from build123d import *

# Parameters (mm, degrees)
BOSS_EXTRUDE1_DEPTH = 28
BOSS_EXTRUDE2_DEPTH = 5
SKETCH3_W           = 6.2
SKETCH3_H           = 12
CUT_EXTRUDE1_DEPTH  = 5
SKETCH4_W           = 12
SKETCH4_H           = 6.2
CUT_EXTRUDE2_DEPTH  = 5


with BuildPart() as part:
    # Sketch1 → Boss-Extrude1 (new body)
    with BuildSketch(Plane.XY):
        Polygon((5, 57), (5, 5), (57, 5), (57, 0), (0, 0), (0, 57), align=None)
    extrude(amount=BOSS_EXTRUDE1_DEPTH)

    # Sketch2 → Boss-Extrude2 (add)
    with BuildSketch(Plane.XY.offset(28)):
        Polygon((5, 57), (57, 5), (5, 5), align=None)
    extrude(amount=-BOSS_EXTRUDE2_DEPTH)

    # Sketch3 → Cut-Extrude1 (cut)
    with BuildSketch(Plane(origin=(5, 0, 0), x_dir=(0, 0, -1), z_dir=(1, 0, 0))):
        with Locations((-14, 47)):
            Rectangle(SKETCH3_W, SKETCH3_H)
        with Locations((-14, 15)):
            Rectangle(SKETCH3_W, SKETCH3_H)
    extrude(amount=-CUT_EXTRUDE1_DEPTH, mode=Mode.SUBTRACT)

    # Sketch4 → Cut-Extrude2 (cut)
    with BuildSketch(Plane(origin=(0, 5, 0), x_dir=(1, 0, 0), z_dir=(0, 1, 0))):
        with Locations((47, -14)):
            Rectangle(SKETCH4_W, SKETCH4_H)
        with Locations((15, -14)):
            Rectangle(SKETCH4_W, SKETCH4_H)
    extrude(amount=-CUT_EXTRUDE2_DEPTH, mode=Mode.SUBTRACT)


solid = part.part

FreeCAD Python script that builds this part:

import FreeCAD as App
import Part
import Sketcher
Q = App.Units.Quantity


def add_polygon(sketch, points):
    """Adds a closed chain of lines whose ends are joined by coincident constraints."""
    first, n = sketch.GeometryCount, len(points)
    for a, b in zip(points, points[1:] + points[:1]):
        sketch.addGeometry(Part.LineSegment(App.Vector(*a, 0), App.Vector(*b, 0)), False)
    for i in range(n):
        sketch.addConstraint(Sketcher.Constraint("Coincident", first + i, 2, first + (i + 1) % n, 1))

doc = App.newDocument("Part")
body = doc.addObject("PartDesign::Body", "Body")

# Sketch on XY plane
sketch1 = body.newObject("Sketcher::SketchObject", "Sketch")
sketch1.AttachmentSupport = (doc.getObject("XY_Plane"), [""])
sketch1.MapMode = "FlatFace"
add_polygon(sketch1, [(5, 5), (5, 57), (0, 57), (0, 0), (57, 0), (57, 5)])  # lines 0-5
sketch1.addConstraint([
    Sketcher.Constraint("Vertical", 0),
    Sketcher.Constraint("Horizontal", 1),
    Sketcher.Constraint("Vertical", 2),
    Sketcher.Constraint("Horizontal", 3),
    Sketcher.Constraint("Vertical", 4),
    Sketcher.Constraint("Horizontal", 5),
    Sketcher.Constraint("Coincident", 2, 2, -1, 1),
    Sketcher.Constraint("Equal", 5, 0),
    Sketcher.Constraint("Equal", 3, 2),
    Sketcher.Constraint("DistanceX", 1, 2, 1, 1, Q("5 mm")),
    Sketcher.Constraint("DistanceX", 3, 1, 3, 2, Q("57 mm")),
])
pad1 = body.newObject("PartDesign::Pad", "Pad")
pad1.Profile = sketch1
pad1.Length = 28

# Sketch on XY plane
sketch2 = body.newObject("Sketcher::SketchObject", "Sketch001")
sketch2.AttachmentSupport = (doc.getObject("XY_Plane"), [""])
sketch2.MapMode = "FlatFace"
sketch2.AttachmentOffset = App.Placement(App.Vector(0, 0, 28), App.Rotation())
add_polygon(sketch2, [(57, 5), (5, 57), (5, 5)])  # lines 0-2
sketch2.addConstraint([
    Sketcher.Constraint("Vertical", 1),
    Sketcher.Constraint("Horizontal", 2),
    Sketcher.Constraint("Equal", 2, 1),
    Sketcher.Constraint("DistanceX", 2, 1, 2, 2, Q("52 mm")),
    Sketcher.Constraint("DistanceX", -1, 1, 0, 2, Q("5 mm")),
    Sketcher.Constraint("DistanceY", -1, 1, 0, 2, Q("57 mm")),
])
pad2 = body.newObject("PartDesign::Pad", "Pad001")
pad2.Profile = sketch2
pad2.Length = 5
pad2.Reversed = True

# Sketch on YZ plane
sketch3 = body.newObject("Sketcher::SketchObject", "Sketch002")
sketch3.AttachmentSupport = (doc.getObject("YZ_Plane"), [""])
sketch3.MapMode = "FlatFace"
sketch3.AttachmentOffset = App.Placement(App.Vector(0, 0, 5), App.Rotation())
add_polygon(sketch3, [(53, 17), (41, 17), (41, 11), (53, 11)])  # lines 0-3
add_polygon(sketch3, [(21, 17), (9, 17), (9, 11), (21, 11)])  # lines 4-7
sketch3.addConstraint([
    Sketcher.Constraint("Horizontal", 0),
    Sketcher.Constraint("Vertical", 1),
    Sketcher.Constraint("Horizontal", 2),
    Sketcher.Constraint("Vertical", 3),
    Sketcher.Constraint("Horizontal", 4),
    Sketcher.Constraint("Vertical", 5),
    Sketcher.Constraint("Horizontal", 6),
    Sketcher.Constraint("Vertical", 7),
    Sketcher.Constraint("Horizontal", 3, 2, 4, 2),
    Sketcher.Constraint("Horizontal", 2, 2, 5, 2),
    Sketcher.Constraint("Equal", 2, 4),
    Sketcher.Constraint("DistanceX", 0, 2, 0, 1, Q("12 mm")),
    Sketcher.Constraint("DistanceY", 1, 2, 1, 1, Q("6.2 mm")),
    Sketcher.Constraint("DistanceX", -1, 1, 0, 2, Q("41 mm")),
    Sketcher.Constraint("DistanceX", -1, 1, 4, 2, Q("9 mm")),
    Sketcher.Constraint("DistanceY", -1, 1, 0, 2, Q("17.1 mm")),
])
pocket1 = body.newObject("PartDesign::Pocket", "Pocket")
pocket1.Profile = sketch3
pocket1.Length = 5

# Sketch on XZ plane
sketch4 = body.newObject("Sketcher::SketchObject", "Sketch003")
sketch4.AttachmentSupport = (doc.getObject("XZ_Plane"), [""])
sketch4.MapMode = "FlatFace"
sketch4.AttachmentOffset = App.Placement(App.Vector(0, 0, -5), App.Rotation())
add_polygon(sketch4, [(41, 11), (41, 17), (53, 17), (53, 11)])  # lines 0-3
add_polygon(sketch4, [(9, 11), (9, 17), (21, 17), (21, 11)])  # lines 4-7
sketch4.addConstraint([
    Sketcher.Constraint("Vertical", 0),
    Sketcher.Constraint("Horizontal", 1),
    Sketcher.Constraint("Vertical", 2),
    Sketcher.Constraint("Horizontal", 3),
    Sketcher.Constraint("Vertical", 4),
    Sketcher.Constraint("Horizontal", 5),
    Sketcher.Constraint("Vertical", 6),
    Sketcher.Constraint("Horizontal", 7),
    Sketcher.Constraint("Horizontal", 1, 2, 4, 2),
    Sketcher.Constraint("Horizontal", 3, 2, 6, 2),
    Sketcher.Constraint("Equal", 3, 5),
    Sketcher.Constraint("DistanceX", 1, 1, 1, 2, Q("12 mm")),
    Sketcher.Constraint("DistanceY", 0, 1, 0, 2, Q("6.2 mm")),
    Sketcher.Constraint("DistanceX", -1, 1, 0, 2, Q("41 mm")),
    Sketcher.Constraint("DistanceX", -1, 1, 4, 2, Q("9 mm")),
    Sketcher.Constraint("DistanceY", -1, 1, 0, 2, Q("17.1 mm")),
])
pocket2 = body.newObject("PartDesign::Pocket", "Pocket001")
pocket2.Profile = sketch4
pocket2.Length = 5
pocket2.Reversed = True

doc.recompute()
